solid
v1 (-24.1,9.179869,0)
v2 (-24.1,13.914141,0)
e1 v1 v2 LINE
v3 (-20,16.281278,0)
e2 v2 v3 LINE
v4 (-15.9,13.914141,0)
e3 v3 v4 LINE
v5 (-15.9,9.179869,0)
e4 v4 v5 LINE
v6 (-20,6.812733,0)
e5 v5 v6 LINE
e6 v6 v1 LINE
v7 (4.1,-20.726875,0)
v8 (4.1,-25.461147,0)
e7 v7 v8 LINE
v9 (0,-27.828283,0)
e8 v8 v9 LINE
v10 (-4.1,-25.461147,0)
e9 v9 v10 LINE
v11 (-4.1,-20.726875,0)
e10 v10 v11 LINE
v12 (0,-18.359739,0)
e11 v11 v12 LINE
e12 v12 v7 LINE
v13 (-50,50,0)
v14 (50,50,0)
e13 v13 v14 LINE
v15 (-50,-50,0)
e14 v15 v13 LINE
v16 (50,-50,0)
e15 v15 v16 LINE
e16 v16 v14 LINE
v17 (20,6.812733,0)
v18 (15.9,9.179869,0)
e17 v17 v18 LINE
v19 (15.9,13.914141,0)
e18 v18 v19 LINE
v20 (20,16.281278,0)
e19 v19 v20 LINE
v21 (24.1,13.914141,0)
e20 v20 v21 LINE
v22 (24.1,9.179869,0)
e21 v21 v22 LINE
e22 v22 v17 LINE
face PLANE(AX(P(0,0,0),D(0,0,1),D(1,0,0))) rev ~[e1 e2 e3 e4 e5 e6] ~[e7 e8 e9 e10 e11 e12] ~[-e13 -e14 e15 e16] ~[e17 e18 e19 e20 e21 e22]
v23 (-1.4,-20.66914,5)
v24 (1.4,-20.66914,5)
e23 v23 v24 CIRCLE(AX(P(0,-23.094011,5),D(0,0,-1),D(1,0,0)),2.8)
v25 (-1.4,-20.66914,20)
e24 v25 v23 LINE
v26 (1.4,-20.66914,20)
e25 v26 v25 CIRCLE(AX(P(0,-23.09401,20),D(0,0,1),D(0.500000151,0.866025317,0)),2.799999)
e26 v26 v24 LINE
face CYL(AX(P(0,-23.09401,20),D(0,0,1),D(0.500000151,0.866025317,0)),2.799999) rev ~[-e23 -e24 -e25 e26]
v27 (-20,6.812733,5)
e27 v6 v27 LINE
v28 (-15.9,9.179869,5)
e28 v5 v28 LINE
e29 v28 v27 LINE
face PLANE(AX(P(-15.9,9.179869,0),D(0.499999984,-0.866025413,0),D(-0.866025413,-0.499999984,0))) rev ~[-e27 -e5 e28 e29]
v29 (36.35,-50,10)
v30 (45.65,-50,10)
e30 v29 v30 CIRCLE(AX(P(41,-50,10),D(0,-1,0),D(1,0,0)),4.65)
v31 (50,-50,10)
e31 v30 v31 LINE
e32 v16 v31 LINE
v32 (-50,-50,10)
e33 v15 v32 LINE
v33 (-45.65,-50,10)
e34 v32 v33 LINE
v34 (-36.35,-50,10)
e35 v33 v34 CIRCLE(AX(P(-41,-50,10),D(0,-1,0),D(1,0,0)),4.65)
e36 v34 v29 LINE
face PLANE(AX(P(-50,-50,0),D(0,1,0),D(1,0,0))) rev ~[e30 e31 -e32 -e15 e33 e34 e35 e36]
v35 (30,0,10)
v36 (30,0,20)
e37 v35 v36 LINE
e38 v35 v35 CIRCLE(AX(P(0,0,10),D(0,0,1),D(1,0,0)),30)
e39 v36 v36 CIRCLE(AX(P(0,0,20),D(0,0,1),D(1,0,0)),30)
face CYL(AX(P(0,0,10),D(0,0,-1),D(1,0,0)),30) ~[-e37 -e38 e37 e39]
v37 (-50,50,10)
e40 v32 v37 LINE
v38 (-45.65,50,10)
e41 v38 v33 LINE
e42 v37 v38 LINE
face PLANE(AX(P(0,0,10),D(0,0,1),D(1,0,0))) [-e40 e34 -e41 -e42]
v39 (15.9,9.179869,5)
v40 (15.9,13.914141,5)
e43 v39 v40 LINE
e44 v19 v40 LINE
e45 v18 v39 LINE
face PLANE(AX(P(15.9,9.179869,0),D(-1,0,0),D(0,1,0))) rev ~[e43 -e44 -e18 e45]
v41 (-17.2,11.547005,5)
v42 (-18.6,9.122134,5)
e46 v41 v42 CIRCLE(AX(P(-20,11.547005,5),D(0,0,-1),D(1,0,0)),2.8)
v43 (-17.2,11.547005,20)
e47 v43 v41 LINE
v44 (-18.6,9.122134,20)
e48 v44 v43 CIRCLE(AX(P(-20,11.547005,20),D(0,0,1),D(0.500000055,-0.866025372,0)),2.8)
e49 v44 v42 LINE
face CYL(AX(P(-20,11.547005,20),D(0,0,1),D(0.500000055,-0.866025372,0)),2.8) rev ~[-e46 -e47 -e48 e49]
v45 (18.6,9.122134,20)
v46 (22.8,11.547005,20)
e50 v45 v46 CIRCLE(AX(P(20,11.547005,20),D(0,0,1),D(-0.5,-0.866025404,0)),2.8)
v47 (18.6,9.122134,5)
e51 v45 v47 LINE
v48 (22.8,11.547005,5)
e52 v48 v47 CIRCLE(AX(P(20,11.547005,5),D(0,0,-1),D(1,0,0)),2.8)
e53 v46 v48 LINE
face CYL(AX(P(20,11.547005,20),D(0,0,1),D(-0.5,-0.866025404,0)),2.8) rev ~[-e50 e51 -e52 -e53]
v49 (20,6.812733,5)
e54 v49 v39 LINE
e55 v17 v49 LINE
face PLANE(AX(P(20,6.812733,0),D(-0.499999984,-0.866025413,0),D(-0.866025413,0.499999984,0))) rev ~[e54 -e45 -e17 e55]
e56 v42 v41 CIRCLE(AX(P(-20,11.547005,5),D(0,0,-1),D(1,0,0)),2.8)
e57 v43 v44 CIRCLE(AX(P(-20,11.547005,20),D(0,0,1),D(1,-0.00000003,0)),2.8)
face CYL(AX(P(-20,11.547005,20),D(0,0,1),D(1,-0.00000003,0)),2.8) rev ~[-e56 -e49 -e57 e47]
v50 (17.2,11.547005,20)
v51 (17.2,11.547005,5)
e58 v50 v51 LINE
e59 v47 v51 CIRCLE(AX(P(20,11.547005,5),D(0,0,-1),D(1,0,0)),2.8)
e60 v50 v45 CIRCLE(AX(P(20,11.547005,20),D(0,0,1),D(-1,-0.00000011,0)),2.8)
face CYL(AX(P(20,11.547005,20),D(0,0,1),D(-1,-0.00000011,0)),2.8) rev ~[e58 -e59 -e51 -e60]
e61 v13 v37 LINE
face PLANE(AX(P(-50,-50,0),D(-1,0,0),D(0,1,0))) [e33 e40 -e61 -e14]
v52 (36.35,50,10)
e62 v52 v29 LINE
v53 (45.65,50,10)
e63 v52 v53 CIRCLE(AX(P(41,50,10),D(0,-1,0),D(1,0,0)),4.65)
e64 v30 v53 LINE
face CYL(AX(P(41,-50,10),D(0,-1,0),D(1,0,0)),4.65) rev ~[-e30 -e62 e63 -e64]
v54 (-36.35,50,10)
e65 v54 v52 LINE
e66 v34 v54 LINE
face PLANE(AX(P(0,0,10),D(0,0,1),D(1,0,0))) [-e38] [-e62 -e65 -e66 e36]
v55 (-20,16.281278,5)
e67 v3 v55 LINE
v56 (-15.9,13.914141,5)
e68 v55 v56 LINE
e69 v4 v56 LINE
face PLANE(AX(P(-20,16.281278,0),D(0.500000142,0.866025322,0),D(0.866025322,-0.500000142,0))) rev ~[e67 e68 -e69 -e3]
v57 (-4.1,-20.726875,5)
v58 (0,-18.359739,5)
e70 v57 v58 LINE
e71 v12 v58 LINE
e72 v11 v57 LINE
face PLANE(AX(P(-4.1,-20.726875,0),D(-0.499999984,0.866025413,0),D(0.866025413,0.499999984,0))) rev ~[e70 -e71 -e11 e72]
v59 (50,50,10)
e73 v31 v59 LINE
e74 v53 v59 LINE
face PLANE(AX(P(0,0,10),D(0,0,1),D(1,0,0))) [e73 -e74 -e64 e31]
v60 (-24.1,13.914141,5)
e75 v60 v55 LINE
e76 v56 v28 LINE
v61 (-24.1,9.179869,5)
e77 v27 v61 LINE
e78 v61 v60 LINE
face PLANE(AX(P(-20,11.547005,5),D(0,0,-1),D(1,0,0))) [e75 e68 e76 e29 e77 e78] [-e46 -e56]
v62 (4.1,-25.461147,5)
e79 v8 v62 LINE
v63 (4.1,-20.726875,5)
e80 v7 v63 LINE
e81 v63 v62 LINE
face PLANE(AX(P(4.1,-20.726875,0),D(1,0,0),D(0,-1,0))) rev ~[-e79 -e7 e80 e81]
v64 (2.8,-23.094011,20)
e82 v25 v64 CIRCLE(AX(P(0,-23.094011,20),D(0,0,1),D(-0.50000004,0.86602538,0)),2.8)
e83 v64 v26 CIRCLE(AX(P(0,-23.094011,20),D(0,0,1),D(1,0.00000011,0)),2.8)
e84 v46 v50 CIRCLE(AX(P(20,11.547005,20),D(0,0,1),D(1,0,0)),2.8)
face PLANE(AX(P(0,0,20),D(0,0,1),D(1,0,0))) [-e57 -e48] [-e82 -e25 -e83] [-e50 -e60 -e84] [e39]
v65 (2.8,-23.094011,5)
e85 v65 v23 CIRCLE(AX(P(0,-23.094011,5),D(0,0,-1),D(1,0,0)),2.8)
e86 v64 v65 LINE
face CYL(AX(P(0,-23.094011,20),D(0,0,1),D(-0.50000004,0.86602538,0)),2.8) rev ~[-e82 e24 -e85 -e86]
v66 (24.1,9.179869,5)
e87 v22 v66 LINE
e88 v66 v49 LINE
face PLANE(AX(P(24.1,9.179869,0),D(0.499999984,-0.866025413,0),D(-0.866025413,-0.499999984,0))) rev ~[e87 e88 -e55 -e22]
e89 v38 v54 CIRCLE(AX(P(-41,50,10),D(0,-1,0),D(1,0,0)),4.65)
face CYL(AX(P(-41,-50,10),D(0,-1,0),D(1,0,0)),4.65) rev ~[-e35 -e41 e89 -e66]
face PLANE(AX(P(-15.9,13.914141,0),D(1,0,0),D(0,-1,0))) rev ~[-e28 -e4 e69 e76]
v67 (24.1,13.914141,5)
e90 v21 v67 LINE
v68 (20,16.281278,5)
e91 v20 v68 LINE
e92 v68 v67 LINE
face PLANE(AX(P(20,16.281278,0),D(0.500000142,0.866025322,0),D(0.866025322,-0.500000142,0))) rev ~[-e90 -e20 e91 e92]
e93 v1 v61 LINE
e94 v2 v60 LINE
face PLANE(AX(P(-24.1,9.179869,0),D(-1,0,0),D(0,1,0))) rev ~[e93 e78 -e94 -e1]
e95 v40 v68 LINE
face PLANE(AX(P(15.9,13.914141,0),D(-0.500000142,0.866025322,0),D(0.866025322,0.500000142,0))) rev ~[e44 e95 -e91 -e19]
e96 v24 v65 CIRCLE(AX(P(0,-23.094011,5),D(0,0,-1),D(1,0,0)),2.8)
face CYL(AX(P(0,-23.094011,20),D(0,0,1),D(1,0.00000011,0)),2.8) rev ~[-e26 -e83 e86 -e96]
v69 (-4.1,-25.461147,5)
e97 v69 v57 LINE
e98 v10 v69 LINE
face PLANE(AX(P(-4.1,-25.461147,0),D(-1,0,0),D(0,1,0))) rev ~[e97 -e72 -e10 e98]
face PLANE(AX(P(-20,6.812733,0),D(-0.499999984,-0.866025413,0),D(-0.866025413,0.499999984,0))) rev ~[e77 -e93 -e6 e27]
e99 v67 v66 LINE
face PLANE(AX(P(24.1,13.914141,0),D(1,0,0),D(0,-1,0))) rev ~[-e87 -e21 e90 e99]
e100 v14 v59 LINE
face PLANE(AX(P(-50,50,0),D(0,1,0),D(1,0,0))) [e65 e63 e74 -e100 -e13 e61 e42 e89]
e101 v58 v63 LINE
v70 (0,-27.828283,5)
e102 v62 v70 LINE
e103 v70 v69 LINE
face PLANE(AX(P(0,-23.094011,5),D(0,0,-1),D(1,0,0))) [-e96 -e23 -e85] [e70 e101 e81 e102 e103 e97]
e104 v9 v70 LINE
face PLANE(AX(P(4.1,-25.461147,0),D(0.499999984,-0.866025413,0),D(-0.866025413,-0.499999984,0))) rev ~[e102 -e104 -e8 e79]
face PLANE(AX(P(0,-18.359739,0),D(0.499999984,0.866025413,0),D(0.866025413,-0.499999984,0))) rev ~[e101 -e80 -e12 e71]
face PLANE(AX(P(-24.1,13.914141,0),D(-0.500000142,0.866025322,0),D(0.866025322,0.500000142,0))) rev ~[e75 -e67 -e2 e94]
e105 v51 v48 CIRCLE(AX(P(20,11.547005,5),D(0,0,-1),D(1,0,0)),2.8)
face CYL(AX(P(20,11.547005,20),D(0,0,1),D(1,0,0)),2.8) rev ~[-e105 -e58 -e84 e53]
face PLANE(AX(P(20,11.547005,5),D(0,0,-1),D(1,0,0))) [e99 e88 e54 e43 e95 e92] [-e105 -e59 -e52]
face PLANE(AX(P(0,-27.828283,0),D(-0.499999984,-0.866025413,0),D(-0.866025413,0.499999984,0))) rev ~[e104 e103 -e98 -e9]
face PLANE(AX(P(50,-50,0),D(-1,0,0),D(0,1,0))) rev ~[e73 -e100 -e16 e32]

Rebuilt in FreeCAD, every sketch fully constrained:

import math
import FreeCAD as App
import Part
import Sketcher
from FreeCAD import Vector
Q = App.Units.Quantity

doc = App.newDocument("Part")
body = doc.addObject("PartDesign::Body", "Body")

sketch1 = body.newObject("Sketcher::SketchObject", "Sketch")
sketch1.AttachmentSupport = (doc.getObject("XY_Plane"), [""])
sketch1.MapMode = "FlatFace"
sketch1.addGeometry([
    Part.LineSegment(Vector(-50, 50, 0), Vector(-50, -50, 0)),
    Part.LineSegment(Vector(-50, -50, 0), Vector(50, -50, 0)),
    Part.LineSegment(Vector(50, -50, 0), Vector(50, 50, 0)),
    Part.LineSegment(Vector(50, 50, 0), Vector(-50, 50, 0)),
], False)
sketch1.addConstraint([
    Sketcher.Constraint("Coincident", 0, 2, 1, 1),
    Sketcher.Constraint("Coincident", 1, 2, 2, 1),
    Sketcher.Constraint("Coincident", 2, 2, 3, 1),
    Sketcher.Constraint("Coincident", 3, 2, 0, 1),
    Sketcher.Constraint("Vertical", 0),
    Sketcher.Constraint("Horizontal", 1),
    Sketcher.Constraint("Vertical", 2),
    Sketcher.Constraint("Horizontal", 3),
    Sketcher.Constraint("Symmetric", 0, 2, 2, 2, -1, 1),
    Sketcher.Constraint("Equal", 3, 0),
    Sketcher.Constraint("DistanceX", 1, 1, 1, 2, 100.0),
])
pad1 = body.newObject("PartDesign::Pad", "Pad")
pad1.Profile = sketch1
pad1.Length = 10

sketch2 = body.newObject("Sketcher::SketchObject", "Sketch001")
sketch2.AttachmentSupport = (doc.getObject("XZ_Plane"), [""])
sketch2.MapMode = "FlatFace"
sketch2.AttachmentOffset = App.Placement(Vector(0, 0, 50), App.Rotation())
sketch2.addGeometry([
    Part.Circle(Vector(-41, 10, 0), Vector(0, 0, 1), 4.65),
    Part.Circle(Vector(41, 10, 0), Vector(0, 0, 1), 4.65),
], False)
sketch2.addConstraint([
    Sketcher.Constraint("Equal", 0, 1),
    Sketcher.Constraint("Symmetric", 0, 3, 1, 3, -2),
    Sketcher.Constraint("Diameter", 0, 9.3),
    Sketcher.Constraint("DistanceX", 0, 3, -1, 1, 41.0),
    Sketcher.Constraint("DistanceY", -1, 1, 0, 3, 10.0),
])
pocket1 = body.newObject("PartDesign::Pocket", "Pocket")
pocket1.Profile = sketch2
pocket1.Type = "ThroughAll"

sketch3 = body.newObject("Sketcher::SketchObject", "Sketch002")
sketch3.AttachmentSupport = (doc.getObject("XY_Plane"), [""])
sketch3.MapMode = "FlatFace"
sketch3.AttachmentOffset = App.Placement(Vector(0, 0, 10), App.Rotation())
sketch3.addGeometry(Part.Circle(Vector(0, 0, 0), Vector(0, 0, 1), 30), False)
sketch3.addConstraint([
    Sketcher.Constraint("Coincident", 0, 3, -1, 1),
    Sketcher.Constraint("Diameter", 0, 60.0),
])
pad2 = body.newObject("PartDesign::Pad", "Pad001")
pad2.Profile = sketch3
pad2.Length = 10

sketch4 = body.newObject("Sketcher::SketchObject", "Sketch003")
sketch4.AttachmentSupport = (doc.getObject("XY_Plane"), [""])
sketch4.MapMode = "FlatFace"
sketch4.AttachmentOffset = App.Placement(Vector(0, 0, 20), App.Rotation())
sketch4.addGeometry([
    Part.ArcOfCircle(Part.Circle(Vector(-20, 11.547005, 0), Vector(0, 0, 1), 2.8), math.radians(-59.999996), math.radians(-0.000006)),
    Part.ArcOfCircle(Part.Circle(Vector(-20, 11.547005, 0), Vector(0, 0, 1), 2.8), math.radians(-0.000002), math.radians(299.999999)),
    Part.ArcOfCircle(Part.Circle(Vector(20, 11.547005, 0), Vector(0, 0, 1), 2.8), math.radians(-179.999994), math.radians(-120.000004)),
    Part.ArcOfCircle(Part.Circle(Vector(20, 11.547005, 0), Vector(0, 0, 1), 2.8), math.radians(-120), math.radians(-0.000003)),
    Part.ArcOfCircle(Part.Circle(Vector(20, 11.547005, 0), Vector(0, 0, 1), 2.8), math.radians(0), math.radians(180)),
    Part.ArcOfCircle(Part.Circle(Vector(0, -23.09401, 0), Vector(0, 0, 1), 2.799999), math.radians(59.99999), math.radians(120.00001)),
    Part.ArcOfCircle(Part.Circle(Vector(0, -23.094011, 0), Vector(0, 0, 1), 2.8), math.radians(120.000003), math.radians(360)),
    Part.ArcOfCircle(Part.Circle(Vector(0, -23.094011, 0), Vector(0, 0, 1), 2.8), math.radians(0.000006), math.radians(59.999996)),
], False)
sketch4.addConstraint([
    Sketcher.Constraint("Tangent", 0, 1, 1, 2),
    Sketcher.Constraint("Coincident", 1, 1, 0, 2),
    Sketcher.Constraint("Tangent", 2, 2, 3, 1),
    Sketcher.Constraint("Tangent", 3, 2, 4, 1),
    Sketcher.Constraint("Tangent", 4, 2, 2, 1),
    Sketcher.Constraint("Tangent", 5, 2, 6, 1),
    Sketcher.Constraint("Tangent", 6, 2, 7, 1),
    Sketcher.Constraint("Tangent", 7, 2, 5, 1),
    Sketcher.Constraint("Equal", 1, 2),
    Sketcher.Constraint("Equal", 4, 5),
    Sketcher.Constraint("Symmetric", 0, 3, 2, 3, -2),
    Sketcher.Constraint("Symmetric", 5, 2, 7, 2, -2),
    Sketcher.Constraint("Horizontal", 4, 3, 1, 1),
    Sketcher.Constraint("Horizontal", 0, 1, 2, 2),
    Sketcher.Constraint("Horizontal", 1, 1, 3, 2),
    Sketcher.Constraint("Horizontal", 3, 2, 4, 2),
    Sketcher.Constraint("Horizontal", 7, 3, 6, 2),
    Sketcher.Constraint("Radius", 0, 2.8),
    Sketcher.Constraint("DistanceX", 0, 3, -1, 1, 20.0),
    Sketcher.Constraint("DistanceX", 0, 1, -1, 1, 18.6),
    Sketcher.Constraint("DistanceX", 5, 2, -1, 1, 1.4),
    Sketcher.Constraint("DistanceY", 5, 3, -1, 1, 23.09401),
    Sketcher.Constraint("DistanceY", -1, 1, 0, 3, 11.547005),
])
pocket2 = body.newObject("PartDesign::Pocket", "Pocket001")
pocket2.Profile = sketch4
pocket2.Type = "ThroughAll"

sketch5 = body.newObject("Sketcher::SketchObject", "Sketch004")
sketch5.AttachmentSupport = (doc.getObject("XY_Plane"), [""])
sketch5.MapMode = "FlatFace"
sketch5.addGeometry([
    Part.LineSegment(Vector(0, -18.359739, 0), Vector(4.1, -20.726875, 0)),
    Part.LineSegment(Vector(4.1, -20.726875, 0), Vector(4.1, -25.461147, 0)),
    Part.LineSegment(Vector(4.1, -25.461147, 0), Vector(0, -27.828283, 0)),
    Part.LineSegment(Vector(0, -27.828283, 0), Vector(-4.1, -25.461147, 0)),
    Part.LineSegment(Vector(-4.1, -25.461147, 0), Vector(-4.1, -20.726875, 0)),
    Part.LineSegment(Vector(-4.1, -20.726875, 0), Vector(0, -18.359739, 0)),
    Part.Circle(Vector(0, -23.094011, 0), Vector(0, 0, 1), 2.8),
    Part.LineSegment(Vector(-20, 16.281278, 0), Vector(-15.9, 13.914141, 0)),
    Part.LineSegment(Vector(-15.9, 13.914141, 0), Vector(-15.9, 9.179869, 0)),
    Part.LineSegment(Vector(-15.9, 9.179869, 0), Vector(-20, 6.812733, 0)),
    Part.LineSegment(Vector(-20, 6.812733, 0), Vector(-24.1, 9.179869, 0)),
    Part.LineSegment(Vector(-24.1, 9.179869, 0), Vector(-24.1, 13.914141, 0)),
    Part.LineSegment(Vector(-24.1, 13.914141, 0), Vector(-20, 16.281278, 0)),
    Part.Circle(Vector(-20, 11.547005, 0), Vector(0, 0, 1), 2.8),
    Part.LineSegment(Vector(20, 16.281278, 0), Vector(24.1, 13.914141, 0)),
    Part.LineSegment(Vector(24.1, 13.914141, 0), Vector(24.1, 9.179869, 0)),
    Part.LineSegment(Vector(24.1, 9.179869, 0), Vector(20, 6.812733, 0)),
    Part.LineSegment(Vector(20, 6.812733, 0), Vector(15.9, 9.179869, 0)),
    Part.LineSegment(Vector(15.9, 9.179869, 0), Vector(15.9, 13.914141, 0)),
    Part.LineSegment(Vector(15.9, 13.914141, 0), Vector(20, 16.281278, 0)),
    Part.Circle(Vector(20, 11.547005, 0), Vector(0, 0, 1), 2.8),
], False)
sketch5.addConstraint([
    Sketcher.Constraint("Coincident", 0, 2, 1, 1),
    Sketcher.Constraint("Coincident", 1, 2, 2, 1),
    Sketcher.Constraint("Coincident", 2, 2, 3, 1),
    Sketcher.Constraint("Coincident", 3, 2, 4, 1),
    Sketcher.Constraint("Coincident", 4, 2, 5, 1),
    Sketcher.Constraint("Coincident", 5, 2, 0, 1),
    Sketcher.Constraint("Coincident", 7, 2, 8, 1),
    Sketcher.Constraint("Coincident", 8, 2, 9, 1),
    Sketcher.Constraint("Coincident", 9, 2, 10, 1),
    Sketcher.Constraint("Coincident", 10, 2, 11, 1),
    Sketcher.Constraint("Coincident", 11, 2, 12, 1),
    Sketcher.Constraint("Coincident", 12, 2, 7, 1),
    Sketcher.Constraint("Coincident", 14, 2, 15, 1),
    Sketcher.Constraint("Coincident", 15, 2, 16, 1),
    Sketcher.Constraint("Coincident", 16, 2, 17, 1),
    Sketcher.Constraint("Coincident", 17, 2, 18, 1),
    Sketcher.Constraint("Coincident", 18, 2, 19, 1),
    Sketcher.Constraint("Coincident", 19, 2, 14, 1),
    Sketcher.Constraint("Vertical", 1),
    Sketcher.Constraint("Vertical", 4),
    Sketcher.Constraint("Vertical", 8),
    Sketcher.Constraint("Vertical", 11),
    Sketcher.Constraint("Vertical", 15),
    Sketcher.Constraint("Vertical", 18),
    Sketcher.Constraint("Equal", 6, 13),
    Sketcher.Constraint("Equal", 13, 20),
    Sketcher.Constraint("Symmetric", 13, 3, 20, 3, -2),
    Sketcher.Constraint("Symmetric", 1, 2, 3, 2, -2),
    Sketcher.Constraint("Symmetric", 11, 2, 14, 2, -2),
    Sketcher.Constraint("Symmetric", 9, 2, 16, 2, -2),
    Sketcher.Constraint("Symmetric", 8, 2, 17, 2, -2),
    Sketcher.Constraint("Symmetric", 12, 2, 19, 2, -2),
    Sketcher.Constraint("PointOnObject", 6, 3, -2),
    Sketcher.Constraint("PointOnObject", 2, 2, -2),
    Sketcher.Constraint("PointOnObject", 5, 2, -2),
    Sketcher.Constraint("Parallel", 0, 3),
    Sketcher.Constraint("Parallel", 2, 5),
    Sketcher.Constraint("Parallel", 3, 7),
    Sketcher.Constraint("Parallel", 5, 9),
    Sketcher.Constraint("Parallel", 7, 10),
    Sketcher.Constraint("Parallel", 9, 12),
    Sketcher.Constraint("Parallel", 12, 16),
    Sketcher.Constraint("Parallel", 16, 19),
    Sketcher.Constraint("Horizontal", 8, 2, 10, 2),
    Sketcher.Constraint("Horizontal", 7, 2, 11, 2),
    Sketcher.Constraint("Vertical", 13, 3, 9, 2),
    Sketcher.Constraint("Equal", 4, 8),
    Sketcher.Constraint("Equal", 5, 7),
    Sketcher.Constraint("Diameter", 6, 5.6),
    Sketcher.Constraint("Angle", 0, Q("-29.999999 deg")),
    Sketcher.Constraint("DistanceX", 13, 3, -1, 1, 20.0),
    Sketcher.Constraint("DistanceX", -1, 1, 0, 2, 4.1),
    Sketcher.Constraint("DistanceY", 1, 2, 1, 1, 4.734272),
    Sketcher.Constraint("DistanceY", 6, 3, -1, 1, 23.094011),
    Sketcher.Constraint("DistanceY", 5, 2, -1, 1, 18.359739),
    Sketcher.Constraint("DistanceY", -1, 1, 7, 2, 13.914141),
    Sketcher.Constraint("DistanceY", 0, 2, 20, 3, 32.27388),
])
pocket3 = body.newObject("PartDesign::Pocket", "Pocket002")
pocket3.Profile = sketch5
pocket3.Length = 5
pocket3.Reversed = True

doc.recompute()
